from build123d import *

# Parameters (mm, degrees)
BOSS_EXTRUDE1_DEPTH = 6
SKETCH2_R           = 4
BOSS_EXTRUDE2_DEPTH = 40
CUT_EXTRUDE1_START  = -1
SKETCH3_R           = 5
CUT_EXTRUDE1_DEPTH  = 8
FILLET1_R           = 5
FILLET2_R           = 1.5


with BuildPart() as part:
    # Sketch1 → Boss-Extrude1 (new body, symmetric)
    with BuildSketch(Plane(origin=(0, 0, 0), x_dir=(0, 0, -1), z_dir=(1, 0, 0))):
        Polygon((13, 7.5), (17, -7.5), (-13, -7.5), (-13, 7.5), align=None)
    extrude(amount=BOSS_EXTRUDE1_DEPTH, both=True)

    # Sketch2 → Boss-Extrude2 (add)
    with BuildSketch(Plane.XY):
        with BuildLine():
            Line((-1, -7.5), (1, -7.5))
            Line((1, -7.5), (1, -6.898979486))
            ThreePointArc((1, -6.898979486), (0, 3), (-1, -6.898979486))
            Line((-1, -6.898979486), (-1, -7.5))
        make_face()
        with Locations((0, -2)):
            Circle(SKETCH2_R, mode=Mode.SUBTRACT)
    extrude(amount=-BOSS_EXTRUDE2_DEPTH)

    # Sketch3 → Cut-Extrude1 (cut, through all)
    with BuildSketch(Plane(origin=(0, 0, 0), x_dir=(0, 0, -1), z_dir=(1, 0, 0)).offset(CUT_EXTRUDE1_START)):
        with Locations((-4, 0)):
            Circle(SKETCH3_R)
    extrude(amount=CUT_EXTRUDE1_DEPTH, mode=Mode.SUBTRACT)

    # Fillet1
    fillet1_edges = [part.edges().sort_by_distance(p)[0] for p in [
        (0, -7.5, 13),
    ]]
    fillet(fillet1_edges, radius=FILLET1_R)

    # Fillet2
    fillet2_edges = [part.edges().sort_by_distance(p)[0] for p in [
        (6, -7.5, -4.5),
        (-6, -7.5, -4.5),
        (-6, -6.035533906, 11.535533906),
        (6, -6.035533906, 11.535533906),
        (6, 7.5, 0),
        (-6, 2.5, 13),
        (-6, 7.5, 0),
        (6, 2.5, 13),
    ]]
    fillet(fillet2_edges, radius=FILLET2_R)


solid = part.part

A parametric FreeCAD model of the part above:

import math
import FreeCAD as App
import Part
import Sketcher
from FreeCAD import Vector
Q = App.Units.Quantity


def edges_at(feature, points):
    """Names of the edges that pass closest to the given points."""
    edges = feature.Shape.Edges
    near = lambda p: min(range(len(edges)), key=lambda i: edges[i].distToShape(Part.Vertex(*p))[0])
    return sorted({f"Edge{near(p) + 1}" for p in points})

doc = App.newDocument("Part")
params = doc.addObject("Spreadsheet::Sheet", "Params")
for row, (alias, value) in enumerate([
    ("sketch1_width", "15 mm"),
    ("sketch1_height", "26 mm"),
    ("sketch1_height2", "30 mm"),
    ("pad1_length", "12 mm"),
    ("sketch2_diameter", "8 mm"),
    ("sketch2_radius", "5 mm"),
    ("sketch2_width", "2 mm"),
    ("pad2_length", "40 mm"),
    ("sketch3_diameter", "10 mm"),
    ("fillet_radius", "5 mm"),
    ("fillet2_radius", "1.5 mm"),
], start=1):
    params.set(f"A{row}", alias)
    params.set(f"B{row}", "=" + value)
    params.setAlias(f"B{row}", alias)

body = doc.addObject("PartDesign::Body", "Body")

# Sketch on YZ plane
sketch1 = body.newObject("Sketcher::SketchObject", "Sketch")
sketch1.AttachmentSupport = (doc.getObject("YZ_Plane"), [""])
sketch1.MapMode = "FlatFace"
sketch1.addGeometry(Part.LineSegment(Vector(-8, -17, 0), Vector(8, -13, 0)), False)
sketch1.addGeometry(Part.LineSegment(Vector(8, -13, 0), Vector(8, 13, 0)), False)
sketch1.addGeometry(Part.LineSegment(Vector(8, 13, 0), Vector(-8, 13, 0)), False)
sketch1.addGeometry(Part.LineSegment(Vector(-8, 13, 0), Vector(-8, -17, 0)), False)
sketch1.addConstraint(Sketcher.Constraint("Coincident", 0, 2, 1, 1))
sketch1.addConstraint(Sketcher.Constraint("Coincident", 1, 2, 2, 1))
sketch1.addConstraint(Sketcher.Constraint("Coincident", 2, 2, 3, 1))
sketch1.addConstraint(Sketcher.Constraint("Coincident", 3, 2, 0, 1))
sketch1.addConstraint(Sketcher.Constraint("Vertical", 1))
sketch1.addConstraint(Sketcher.Constraint("Horizontal", 2))
sketch1.addConstraint(Sketcher.Constraint("Vertical", 3))
sketch1.addConstraint(Sketcher.Constraint("Symmetric", 0, 2, 2, 2, -1, 1))
sketch1.addConstraint(Sketcher.Constraint("DistanceX", 2, 2, 2, 1, Q("15 mm")))
sketch1.addConstraint(Sketcher.Constraint("DistanceY", 1, 1, 1, 2, Q("26 mm")))
sketch1.addConstraint(Sketcher.Constraint("DistanceY", 3, 2, 3, 1, Q("30 mm")))
sketch1.setExpression("Constraints[8]", "Params.sketch1_width")
sketch1.setExpression("Constraints[9]", "Params.sketch1_height")
sketch1.setExpression("Constraints[10]", "Params.sketch1_height2")
pad1 = body.newObject("PartDesign::Pad", "Pad")
pad1.Profile = sketch1
pad1.setExpression("Length", "Params.pad1_length")
pad1.Midplane = True

# Sketch on XY plane
sketch2 = body.newObject("Sketcher::SketchObject", "Sketch001")
sketch2.AttachmentSupport = (doc.getObject("XY_Plane"), [""])
sketch2.MapMode = "FlatFace"
sketch2.addGeometry(Part.LineSegment(Vector(-1, -7.5, 0), Vector(1, -7.5, 0)), False)
sketch2.addGeometry(Part.LineSegment(Vector(1, -7.5, 0), Vector(1, -6.9, 0)), False)
sketch2.addGeometry(Part.ArcOfCircle(Part.Circle(Vector(0, -2, 0), Vector(0, 0, 1), 5), math.radians(-78), math.radians(258)), False)
sketch2.addGeometry(Part.LineSegment(Vector(-1, -6.9, 0), Vector(-1, -7.5, 0)), False)
sketch2.addGeometry(Part.Circle(Vector(0, -2, 0), Vector(0, 0, 1), 4), False)
sketch2.addConstraint(Sketcher.Constraint("Coincident", 0, 2, 1, 1))
sketch2.addConstraint(Sketcher.Constraint("Coincident", 1, 2, 2, 1))
sketch2.addConstraint(Sketcher.Constraint("Coincident", 2, 2, 3, 1))
sketch2.addConstraint(Sketcher.Constraint("Coincident", 3, 2, 0, 1))
sketch2.addConstraint(Sketcher.Constraint("Horizontal", 0))
sketch2.addConstraint(Sketcher.Constraint("Vertical", 1))
sketch2.addConstraint(Sketcher.Constraint("Vertical", 3))
sketch2.addConstraint(Sketcher.Constraint("Coincident", 4, 3, 2, 3))
sketch2.addConstraint(Sketcher.Constraint("Symmetric", 1, 2, 2, 2, -2))
sketch2.addConstraint(Sketcher.Constraint("Diameter", 4, Q("8 mm")))
sketch2.addConstraint(Sketcher.Constraint("Radius", 2, Q("5 mm")))
sketch2.addConstraint(Sketcher.Constraint("DistanceX", 0, 1, 0, 2, Q("2 mm")))
sketch2.addConstraint(Sketcher.Constraint("DistanceY", 2, 3, -1, 1, Q("2 mm")))
sketch2.addConstraint(Sketcher.Constraint("DistanceY", 0, 2, -1, 1, Q("7.5 mm")))
sketch2.setExpression("Constraints[9]", "Params.sketch2_diameter")
sketch2.setExpression("Constraints[10]", "Params.sketch2_radius")
sketch2.setExpression("Constraints[11]", "Params.sketch2_width")
pad2 = body.newObject("PartDesign::Pad", "Pad001")
pad2.Profile = sketch2
pad2.setExpression("Length", "Params.pad2_length")
pad2.Reversed = True

# Sketch on YZ plane
sketch3 = body.newObject("Sketcher::SketchObject", "Sketch002")
sketch3.AttachmentSupport = (doc.getObject("YZ_Plane"), [""])
sketch3.MapMode = "FlatFace"
sketch3.AttachmentOffset = App.Placement(Vector(0, 0, -1), App.Rotation())
sketch3.addGeometry(Part.Circle(Vector(0, 4, 0), Vector(0, 0, 1), 5), False)
sketch3.addConstraint(Sketcher.Constraint("PointOnObject", 0, 3, -2))
sketch3.addConstraint(Sketcher.Constraint("Diameter", 0, Q("10 mm")))
sketch3.addConstraint(Sketcher.Constraint("DistanceY", -1, 1, 0, 3, Q("4 mm")))
sketch3.setExpression("Constraints[1]", "Params.sketch3_diameter")
pocket1 = body.newObject("PartDesign::Pocket", "Pocket")
pocket1.Profile = sketch3
pocket1.Type = "ThroughAll"
pocket1.Reversed = True
doc.recompute()

fillet = body.newObject("PartDesign::Fillet", "Fillet")
fillet.Base = (pocket1, edges_at(pocket1, [(0, -7.5, 13)]))
fillet.setExpression("Radius", "Params.fillet_radius")
doc.recompute()

fillet2 = body.newObject("PartDesign::Fillet", "Fillet001")
fillet2.Base = (fillet, edges_at(fillet, [
    (6, -7.5, -4.5),
    (-6, -7.5, -4.5),
    (-6, -6.036, 11.536),
    (6, -6.036, 11.536),
    (6, 7.5, 0),
    (-6, 2.5, 13),
    (-6, 7.5, 0),
    (6, 2.5, 13),
]))
fillet2.setExpression("Radius", "Params.fillet2_radius")

doc.recompute()
